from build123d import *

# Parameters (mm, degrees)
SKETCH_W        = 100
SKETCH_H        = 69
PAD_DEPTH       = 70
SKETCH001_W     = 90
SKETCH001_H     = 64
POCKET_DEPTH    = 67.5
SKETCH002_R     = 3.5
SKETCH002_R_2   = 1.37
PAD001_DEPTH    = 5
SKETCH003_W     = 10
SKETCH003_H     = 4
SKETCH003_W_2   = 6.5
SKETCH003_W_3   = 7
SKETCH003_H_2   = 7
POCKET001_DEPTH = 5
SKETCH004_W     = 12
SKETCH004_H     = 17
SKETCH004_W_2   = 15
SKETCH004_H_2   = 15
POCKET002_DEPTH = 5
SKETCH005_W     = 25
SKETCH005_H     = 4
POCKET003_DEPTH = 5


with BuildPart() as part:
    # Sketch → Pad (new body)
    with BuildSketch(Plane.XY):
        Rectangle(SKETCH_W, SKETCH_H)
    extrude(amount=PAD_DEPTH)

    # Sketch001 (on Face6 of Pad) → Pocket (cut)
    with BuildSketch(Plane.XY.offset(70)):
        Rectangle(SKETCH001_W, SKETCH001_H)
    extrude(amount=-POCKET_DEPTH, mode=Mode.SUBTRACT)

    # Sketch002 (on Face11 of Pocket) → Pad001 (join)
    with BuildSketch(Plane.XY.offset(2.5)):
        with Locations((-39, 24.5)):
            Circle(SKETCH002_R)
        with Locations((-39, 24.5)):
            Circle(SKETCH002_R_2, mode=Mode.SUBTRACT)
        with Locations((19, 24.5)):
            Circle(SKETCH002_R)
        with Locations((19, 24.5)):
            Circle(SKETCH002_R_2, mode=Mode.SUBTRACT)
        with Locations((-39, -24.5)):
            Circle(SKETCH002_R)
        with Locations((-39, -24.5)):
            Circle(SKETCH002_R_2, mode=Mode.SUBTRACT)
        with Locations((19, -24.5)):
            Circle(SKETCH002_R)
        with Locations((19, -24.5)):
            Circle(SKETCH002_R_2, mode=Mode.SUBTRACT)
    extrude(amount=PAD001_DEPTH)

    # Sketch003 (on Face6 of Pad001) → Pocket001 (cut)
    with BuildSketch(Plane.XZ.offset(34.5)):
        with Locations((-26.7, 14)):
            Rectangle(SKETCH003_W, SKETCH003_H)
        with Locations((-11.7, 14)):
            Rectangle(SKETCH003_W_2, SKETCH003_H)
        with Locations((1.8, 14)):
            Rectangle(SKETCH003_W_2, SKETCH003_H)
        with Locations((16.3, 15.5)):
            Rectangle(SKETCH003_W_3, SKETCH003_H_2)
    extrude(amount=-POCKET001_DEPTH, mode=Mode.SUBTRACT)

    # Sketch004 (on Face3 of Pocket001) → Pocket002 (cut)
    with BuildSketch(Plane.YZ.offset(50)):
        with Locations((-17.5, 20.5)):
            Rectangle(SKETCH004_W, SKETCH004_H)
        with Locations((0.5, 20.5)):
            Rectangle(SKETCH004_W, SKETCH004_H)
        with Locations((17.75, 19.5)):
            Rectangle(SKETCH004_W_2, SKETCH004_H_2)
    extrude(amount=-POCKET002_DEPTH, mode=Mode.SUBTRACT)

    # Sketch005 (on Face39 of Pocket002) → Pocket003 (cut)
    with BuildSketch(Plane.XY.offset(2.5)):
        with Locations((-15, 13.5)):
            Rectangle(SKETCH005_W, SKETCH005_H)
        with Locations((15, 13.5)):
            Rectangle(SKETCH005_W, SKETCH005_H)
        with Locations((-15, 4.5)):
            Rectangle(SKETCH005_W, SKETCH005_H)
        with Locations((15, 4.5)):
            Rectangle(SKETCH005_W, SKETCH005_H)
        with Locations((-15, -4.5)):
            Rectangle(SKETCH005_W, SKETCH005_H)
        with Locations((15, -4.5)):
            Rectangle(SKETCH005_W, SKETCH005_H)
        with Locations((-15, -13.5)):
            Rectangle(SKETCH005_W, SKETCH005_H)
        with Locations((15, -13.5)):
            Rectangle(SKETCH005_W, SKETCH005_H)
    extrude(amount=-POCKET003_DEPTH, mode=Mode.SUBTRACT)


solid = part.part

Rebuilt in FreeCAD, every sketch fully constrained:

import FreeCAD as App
import Part
import Sketcher
Q = App.Units.Quantity


def add_polygon(sketch, points):
    """Adds a closed chain of lines whose ends are joined by coincident constraints."""
    first, n = sketch.GeometryCount, len(points)
    for a, b in zip(points, points[1:] + points[:1]):
        sketch.addGeometry(Part.LineSegment(App.Vector(*a, 0), App.Vector(*b, 0)), False)
    for i in range(n):
        sketch.addConstraint(Sketcher.Constraint("Coincident", first + i, 2, first + (i + 1) % n, 1))

doc = App.newDocument("Part")
body = doc.addObject("PartDesign::Body", "Body")

# Sketch on XY plane
sketch1 = body.newObject("Sketcher::SketchObject", "Sketch")
sketch1.AttachmentSupport = (doc.getObject("XY_Plane"), [""])
sketch1.MapMode = "FlatFace"
add_polygon(sketch1, [(-50, 34), (-50, -34), (50, -34), (50, 34)])  # lines 0-3
sketch1.addConstraint([
    Sketcher.Constraint("Vertical", 0),
    Sketcher.Constraint("Horizontal", 1),
    Sketcher.Constraint("Vertical", 2),
    Sketcher.Constraint("Horizontal", 3),
    Sketcher.Constraint("Symmetric", 0, 2, 2, 2, -1, 1),
    Sketcher.Constraint("DistanceX", 1, 1, 1, 2, Q("100 mm")),
    Sketcher.Constraint("DistanceY", 0, 2, 0, 1, Q("69 mm")),
])
pad1 = body.newObject("PartDesign::Pad", "Pad")
pad1.Profile = sketch1
pad1.Length = 70

# Sketch on XY plane
sketch2 = body.newObject("Sketcher::SketchObject", "Sketch001")
sketch2.AttachmentSupport = (doc.getObject("XY_Plane"), [""])
sketch2.MapMode = "FlatFace"
sketch2.AttachmentOffset = App.Placement(App.Vector(0, 0, 70), App.Rotation())
add_polygon(sketch2, [(-45, 32), (-45, -32), (45, -32), (45, 32)])  # lines 0-3
sketch2.addConstraint([
    Sketcher.Constraint("Vertical", 0),
    Sketcher.Constraint("Horizontal", 1),
    Sketcher.Constraint("Vertical", 2),
    Sketcher.Constraint("Horizontal", 3),
    Sketcher.Constraint("Symmetric", 0, 2, 2, 2, -1, 1),
    Sketcher.Constraint("DistanceX", 1, 1, 1, 2, Q("90 mm")),
    Sketcher.Constraint("DistanceY", 0, 2, 0, 1, Q("64 mm")),
])
pocket1 = body.newObject("PartDesign::Pocket", "Pocket")
pocket1.Profile = sketch2
pocket1.Length = 67.5

# Sketch on XY plane
sketch3 = body.newObject("Sketcher::SketchObject", "Sketch002")
sketch3.AttachmentSupport = (doc.getObject("XY_Plane"), [""])
sketch3.MapMode = "FlatFace"
sketch3.AttachmentOffset = App.Placement(App.Vector(0, 0, 2.5), App.Rotation())
sketch3.addGeometry([
    Part.Circle(App.Vector(-39, 24.5, 0), App.Vector(0, 0, 1), 3.5),  # 0
    Part.Circle(App.Vector(-39, 24.5, 0), App.Vector(0, 0, 1), 1.4),  # 1
    Part.Circle(App.Vector(19, 24.5, 0), App.Vector(0, 0, 1), 3.5),  # 2
    Part.Circle(App.Vector(19, 24.5, 0), App.Vector(0, 0, 1), 1.4),  # 3
    Part.Circle(App.Vector(-39, -24.5, 0), App.Vector(0, 0, 1), 3.5),  # 4
    Part.Circle(App.Vector(-39, -24.5, 0), App.Vector(0, 0, 1), 1.4),  # 5
    Part.Circle(App.Vector(19, -24.5, 0), App.Vector(0, 0, 1), 3.5),  # 6
    Part.Circle(App.Vector(19, -24.5, 0), App.Vector(0, 0, 1), 1.4),  # 7
], False)
sketch3.addConstraint([
    Sketcher.Constraint("Coincident", 1, 3, 0, 3),
    Sketcher.Constraint("Coincident", 3, 3, 2, 3),
    Sketcher.Constraint("Coincident", 5, 3, 4, 3),
    Sketcher.Constraint("Coincident", 7, 3, 6, 3),
    Sketcher.Constraint("Equal", 0, 2),
    Sketcher.Constraint("Equal", 1, 3),
    Sketcher.Constraint("Equal", 2, 4),
    Sketcher.Constraint("Equal", 3, 5),
    Sketcher.Constraint("Equal", 4, 6),
    Sketcher.Constraint("Equal", 5, 7),
    Sketcher.Constraint("Symmetric", 0, 3, 4, 3, -1),
    Sketcher.Constraint("Symmetric", 2, 3, 6, 3, -1),
    Sketcher.Constraint("Horizontal", 1, 3, 2, 3),
    Sketcher.Constraint("Diameter", 0, Q("7 mm")),
    Sketcher.Constraint("Diameter", 1, Q("2.74 mm")),
    Sketcher.Constraint("DistanceX", 0, 3, -1, 1, Q("39 mm")),
    Sketcher.Constraint("DistanceX", -1, 1, 2, 3, Q("19 mm")),
    Sketcher.Constraint("DistanceY", 4, 3, 0, 3, Q("49 mm")),
])
pad2 = body.newObject("PartDesign::Pad", "Pad001")
pad2.Profile = sketch3
pad2.Length = 5

# Sketch on XZ plane
sketch4 = body.newObject("Sketcher::SketchObject", "Sketch003")
sketch4.AttachmentSupport = (doc.getObject("XZ_Plane"), [""])
sketch4.MapMode = "FlatFace"
sketch4.AttachmentOffset = App.Placement(App.Vector(0, 0, 34.5), App.Rotation())
add_polygon(sketch4, [(-31.7, 16), (-31.7, 12), (-21.7, 12), (-21.7, 16)])  # lines 0-3
add_polygon(sketch4, [(-14.9, 16), (-14.9, 12), (-8.4, 12), (-8.4, 16)])  # lines 4-7
add_polygon(sketch4, [(-1.4, 16), (-1.4, 12), (5, 12), (5, 16)])  # lines 8-11
add_polygon(sketch4, [(12.8, 19), (12.8, 12), (19.8, 12), (19.8, 19)])  # lines 12-15
sketch4.addConstraint([
    Sketcher.Constraint("Vertical", 0),
    Sketcher.Constraint("Horizontal", 1),
    Sketcher.Constraint("Vertical", 2),
    Sketcher.Constraint("Horizontal", 3),
    Sketcher.Constraint("Vertical", 4),
    Sketcher.Constraint("Horizontal", 5),
    Sketcher.Constraint("Vertical", 6),
    Sketcher.Constraint("Horizontal", 7),
    Sketcher.Constraint("Vertical", 8),
    Sketcher.Constraint("Horizontal", 9),
    Sketcher.Constraint("Vertical", 10),
    Sketcher.Constraint("Horizontal", 11),
    Sketcher.Constraint("Vertical", 12),
    Sketcher.Constraint("Horizontal", 13),
    Sketcher.Constraint("Vertical", 14),
    Sketcher.Constraint("Horizontal", 15),
    Sketcher.Constraint("Horizontal", 1, 2, 4, 2),
    Sketcher.Constraint("Horizontal", 3, 2, 6, 2),
    Sketcher.Constraint("Horizontal", 5, 2, 8, 2),
    Sketcher.Constraint("Horizontal", 7, 2, 10, 2),
    Sketcher.Constraint("Horizontal", 9, 2, 12, 2),
    Sketcher.Constraint("Equal", 7, 9),
    Sketcher.Constraint("Equal", 15, 12),
    Sketcher.Constraint("DistanceX", 1, 1, 1, 2, Q("10 mm")),
    Sketcher.Constraint("DistanceX", 13, 1, 13, 2, Q("7 mm")),
    Sketcher.Constraint("DistanceY", 0, 2, 0, 1, Q("4 mm")),
    Sketcher.Constraint("DistanceX", 5, 1, 5, 2, Q("6.5 mm")),
    Sketcher.Constraint("DistanceY", -1, 1, 0, 2, Q("12 mm")),
    Sketcher.Constraint("DistanceX", 5, 2, 8, 2, Q("7 mm")),
    Sketcher.Constraint("DistanceX", 0, 2, -1, 1, Q("31.7 mm")),
    Sketcher.Constraint("DistanceX", -1, 1, 12, 2, Q("12.8 mm")),
    Sketcher.Constraint("DistanceX", 4, 2, -1, 1, Q("14.95 mm")),
])
pocket2 = body.newObject("PartDesign::Pocket", "Pocket001")
pocket2.Profile = sketch4
pocket2.Length = 5

# Sketch on YZ plane
sketch5 = body.newObject("Sketcher::SketchObject", "Sketch004")
sketch5.AttachmentSupport = (doc.getObject("YZ_Plane"), [""])
sketch5.MapMode = "FlatFace"
sketch5.AttachmentOffset = App.Placement(App.Vector(0, 0, 50), App.Rotation())
add_polygon(sketch5, [(-24, 29), (-24, 12), (-12, 12), (-12, 29)])  # lines 0-3
add_polygon(sketch5, [(-6, 29), (-6, 12), (6, 12), (6, 29)])  # lines 4-7
add_polygon(sketch5, [(10, 27), (10, 12), (25, 12), (25, 27)])  # lines 8-11
sketch5.addConstraint([
    Sketcher.Constraint("Vertical", 0),
    Sketcher.Constraint("Horizontal", 1),
    Sketcher.Constraint("Vertical", 2),
    Sketcher.Constraint("Horizontal", 3),
    Sketcher.Constraint("Vertical", 4),
    Sketcher.Constraint("Horizontal", 5),
    Sketcher.Constraint("Vertical", 6),
    Sketcher.Constraint("Horizontal", 7),
    Sketcher.Constraint("Vertical", 8),
    Sketcher.Constraint("Horizontal", 9),
    Sketcher.Constraint("Vertical", 10),
    Sketcher.Constraint("Horizontal", 11),
    Sketcher.Constraint("Horizontal", 1, 2, 4, 2),
    Sketcher.Constraint("Horizontal", 3, 2, 6, 2),
    Sketcher.Constraint("Horizontal", 5, 2, 8, 2),
    Sketcher.Constraint("Equal", 3, 5),
    Sketcher.Constraint("Equal", 11, 8),
    Sketcher.Constraint("DistanceX", 1, 1, 1, 2, Q("12 mm")),
    Sketcher.Constraint("DistanceX", 9, 1, 9, 2, Q("15 mm")),
    Sketcher.Constraint("DistanceY", 0, 2, 0, 1, Q("17 mm")),
    Sketcher.Constraint("DistanceY", -1, 1, 0, 2, Q("12 mm")),
    Sketcher.Constraint("DistanceX", 1, 2, 4, 2, Q("6 mm")),
    Sketcher.Constraint("DistanceX", 0, 2, -1, 1, Q("23.5 mm")),
    Sketcher.Constraint("DistanceX", -1, 1, 8, 2, Q("10.25 mm")),
])
pocket3 = body.newObject("PartDesign::Pocket", "Pocket002")
pocket3.Profile = sketch5
pocket3.Length = 5

# Sketch on XY plane
sketch6 = body.newObject("Sketcher::SketchObject", "Sketch005")
sketch6.AttachmentSupport = (doc.getObject("XY_Plane"), [""])
sketch6.MapMode = "FlatFace"
sketch6.AttachmentOffset = App.Placement(App.Vector(0, 0, 2.5), App.Rotation())
add_polygon(sketch6, [(-27.5, 15.5), (-27.5, 11.5), (-2.5, 11.5), (-2.5, 15.5)])  # lines 0-3
add_polygon(sketch6, [(2.5, 15.5), (2.5, 11.5), (27.5, 11.5), (27.5, 15.5)])  # lines 4-7
add_polygon(sketch6, [(-27.5, 6.5), (-27.5, 2.5), (-2.5, 2.5), (-2.5, 6.5)])  # lines 8-11
add_polygon(sketch6, [(2.5, 6.5), (2.5, 2.5), (27.5, 2.5), (27.5, 6.5)])  # lines 12-15
add_polygon(sketch6, [(-27.5, -2.5), (-27.5, -6.5), (-2.5, -6.5), (-2.5, -2.5)])  # lines 16-19
add_polygon(sketch6, [(2.5, -2.5), (2.5, -6.5), (27.5, -6.5), (27.5, -2.5)])  # lines 20-23
add_polygon(sketch6, [(-27.5, -11.5), (-27.5, -15.5), (-2.5, -15.5), (-2.5, -11.5)])  # lines 24-27
add_polygon(sketch6, [(2.5, -11.5), (2.5, -15.5), (27.5, -15.5), (27.5, -11.5)])  # lines 28-31
sketch6.addConstraint([
    Sketcher.Constraint("Vertical", 0),
    Sketcher.Constraint("Horizontal", 1),
    Sketcher.Constraint("Vertical", 2),
    Sketcher.Constraint("Horizontal", 3),
    Sketcher.Constraint("Vertical", 4),
    Sketcher.Constraint("Horizontal", 5),
    Sketcher.Constraint("Vertical", 6),
    Sketcher.Constraint("Horizontal", 7),
    Sketcher.Constraint("Vertical", 8),
    Sketcher.Constraint("Horizontal", 9),
    Sketcher.Constraint("Vertical", 10),
    Sketcher.Constraint("Horizontal", 11),
    Sketcher.Constraint("Vertical", 12),
    Sketcher.Constraint("Horizontal", 13),
    Sketcher.Constraint("Vertical", 14),
    Sketcher.Constraint("Horizontal", 15),
    Sketcher.Constraint("Vertical", 16),
    Sketcher.Constraint("Horizontal", 17),
    Sketcher.Constraint("Vertical", 18),
    Sketcher.Constraint("Horizontal", 19),
    Sketcher.Constraint("Vertical", 20),
    Sketcher.Constraint("Horizontal", 21),
    Sketcher.Constraint("Vertical", 22),
    Sketcher.Constraint("Horizontal", 23),
    Sketcher.Constraint("Vertical", 24),
    Sketcher.Constraint("Horizontal", 25),
    Sketcher.Constraint("Vertical", 26),
    Sketcher.Constraint("Horizontal", 27),
    Sketcher.Constraint("Vertical", 28),
    Sketcher.Constraint("Horizontal", 29),
    Sketcher.Constraint("Vertical", 30),
    Sketcher.Constraint("Horizontal", 31),
    Sketcher.Constraint("Symmetric", 14, 2, 16, 2, -1, 1),
    Sketcher.Constraint("Symmetric", 12, 2, 18, 2, -1, 1),
    Sketcher.Constraint("Symmetric", 10, 2, 20, 2, -1, 1),
    Sketcher.Constraint("Symmetric", 8, 2, 22, 2, -1, 1),
    Sketcher.Constraint("Symmetric", 6, 2, 24, 2, -1, 1),
    Sketcher.Constraint("Symmetric", 4, 2, 26, 2, -1, 1),
    Sketcher.Constraint("Symmetric", 2, 2, 28, 2, -1, 1),
    Sketcher.Constraint("Symmetric", 0, 2, 30, 2, -1, 1),
    Sketcher.Constraint("Symmetric", 1, 2, 4, 2, -2),
    Sketcher.Constraint("Symmetric", 3, 2, 6, 2, -2),
    Sketcher.Constraint("Symmetric", 9, 2, 12, 2, -2),
    Sketcher.Constraint("Symmetric", 11, 2, 14, 2, -2),
    Sketcher.Constraint("Vertical", 3, 2, 8, 2),
    Sketcher.Constraint("Vertical", 2, 2, 9, 2),
    Sketcher.Constraint("Equal", 6, 8),
    Sketcher.Constraint("DistanceX", 1, 1, 1, 2, Q("25 mm")),
    Sketcher.Constraint("DistanceY", 0, 2, 0, 1, Q("4 mm")),
    Sketcher.Constraint("DistanceX", 1, 2, 4, 2, Q("5 mm")),
    Sketcher.Constraint("DistanceY", 8, 2, 0, 2, Q("9 mm")),
    Sketcher.Constraint("DistanceY", 16, 2, 8, 2, Q("9 mm")),
])
pocket4 = body.newObject("PartDesign::Pocket", "Pocket003")
pocket4.Profile = sketch6
pocket4.Length = 5

doc.recompute()
